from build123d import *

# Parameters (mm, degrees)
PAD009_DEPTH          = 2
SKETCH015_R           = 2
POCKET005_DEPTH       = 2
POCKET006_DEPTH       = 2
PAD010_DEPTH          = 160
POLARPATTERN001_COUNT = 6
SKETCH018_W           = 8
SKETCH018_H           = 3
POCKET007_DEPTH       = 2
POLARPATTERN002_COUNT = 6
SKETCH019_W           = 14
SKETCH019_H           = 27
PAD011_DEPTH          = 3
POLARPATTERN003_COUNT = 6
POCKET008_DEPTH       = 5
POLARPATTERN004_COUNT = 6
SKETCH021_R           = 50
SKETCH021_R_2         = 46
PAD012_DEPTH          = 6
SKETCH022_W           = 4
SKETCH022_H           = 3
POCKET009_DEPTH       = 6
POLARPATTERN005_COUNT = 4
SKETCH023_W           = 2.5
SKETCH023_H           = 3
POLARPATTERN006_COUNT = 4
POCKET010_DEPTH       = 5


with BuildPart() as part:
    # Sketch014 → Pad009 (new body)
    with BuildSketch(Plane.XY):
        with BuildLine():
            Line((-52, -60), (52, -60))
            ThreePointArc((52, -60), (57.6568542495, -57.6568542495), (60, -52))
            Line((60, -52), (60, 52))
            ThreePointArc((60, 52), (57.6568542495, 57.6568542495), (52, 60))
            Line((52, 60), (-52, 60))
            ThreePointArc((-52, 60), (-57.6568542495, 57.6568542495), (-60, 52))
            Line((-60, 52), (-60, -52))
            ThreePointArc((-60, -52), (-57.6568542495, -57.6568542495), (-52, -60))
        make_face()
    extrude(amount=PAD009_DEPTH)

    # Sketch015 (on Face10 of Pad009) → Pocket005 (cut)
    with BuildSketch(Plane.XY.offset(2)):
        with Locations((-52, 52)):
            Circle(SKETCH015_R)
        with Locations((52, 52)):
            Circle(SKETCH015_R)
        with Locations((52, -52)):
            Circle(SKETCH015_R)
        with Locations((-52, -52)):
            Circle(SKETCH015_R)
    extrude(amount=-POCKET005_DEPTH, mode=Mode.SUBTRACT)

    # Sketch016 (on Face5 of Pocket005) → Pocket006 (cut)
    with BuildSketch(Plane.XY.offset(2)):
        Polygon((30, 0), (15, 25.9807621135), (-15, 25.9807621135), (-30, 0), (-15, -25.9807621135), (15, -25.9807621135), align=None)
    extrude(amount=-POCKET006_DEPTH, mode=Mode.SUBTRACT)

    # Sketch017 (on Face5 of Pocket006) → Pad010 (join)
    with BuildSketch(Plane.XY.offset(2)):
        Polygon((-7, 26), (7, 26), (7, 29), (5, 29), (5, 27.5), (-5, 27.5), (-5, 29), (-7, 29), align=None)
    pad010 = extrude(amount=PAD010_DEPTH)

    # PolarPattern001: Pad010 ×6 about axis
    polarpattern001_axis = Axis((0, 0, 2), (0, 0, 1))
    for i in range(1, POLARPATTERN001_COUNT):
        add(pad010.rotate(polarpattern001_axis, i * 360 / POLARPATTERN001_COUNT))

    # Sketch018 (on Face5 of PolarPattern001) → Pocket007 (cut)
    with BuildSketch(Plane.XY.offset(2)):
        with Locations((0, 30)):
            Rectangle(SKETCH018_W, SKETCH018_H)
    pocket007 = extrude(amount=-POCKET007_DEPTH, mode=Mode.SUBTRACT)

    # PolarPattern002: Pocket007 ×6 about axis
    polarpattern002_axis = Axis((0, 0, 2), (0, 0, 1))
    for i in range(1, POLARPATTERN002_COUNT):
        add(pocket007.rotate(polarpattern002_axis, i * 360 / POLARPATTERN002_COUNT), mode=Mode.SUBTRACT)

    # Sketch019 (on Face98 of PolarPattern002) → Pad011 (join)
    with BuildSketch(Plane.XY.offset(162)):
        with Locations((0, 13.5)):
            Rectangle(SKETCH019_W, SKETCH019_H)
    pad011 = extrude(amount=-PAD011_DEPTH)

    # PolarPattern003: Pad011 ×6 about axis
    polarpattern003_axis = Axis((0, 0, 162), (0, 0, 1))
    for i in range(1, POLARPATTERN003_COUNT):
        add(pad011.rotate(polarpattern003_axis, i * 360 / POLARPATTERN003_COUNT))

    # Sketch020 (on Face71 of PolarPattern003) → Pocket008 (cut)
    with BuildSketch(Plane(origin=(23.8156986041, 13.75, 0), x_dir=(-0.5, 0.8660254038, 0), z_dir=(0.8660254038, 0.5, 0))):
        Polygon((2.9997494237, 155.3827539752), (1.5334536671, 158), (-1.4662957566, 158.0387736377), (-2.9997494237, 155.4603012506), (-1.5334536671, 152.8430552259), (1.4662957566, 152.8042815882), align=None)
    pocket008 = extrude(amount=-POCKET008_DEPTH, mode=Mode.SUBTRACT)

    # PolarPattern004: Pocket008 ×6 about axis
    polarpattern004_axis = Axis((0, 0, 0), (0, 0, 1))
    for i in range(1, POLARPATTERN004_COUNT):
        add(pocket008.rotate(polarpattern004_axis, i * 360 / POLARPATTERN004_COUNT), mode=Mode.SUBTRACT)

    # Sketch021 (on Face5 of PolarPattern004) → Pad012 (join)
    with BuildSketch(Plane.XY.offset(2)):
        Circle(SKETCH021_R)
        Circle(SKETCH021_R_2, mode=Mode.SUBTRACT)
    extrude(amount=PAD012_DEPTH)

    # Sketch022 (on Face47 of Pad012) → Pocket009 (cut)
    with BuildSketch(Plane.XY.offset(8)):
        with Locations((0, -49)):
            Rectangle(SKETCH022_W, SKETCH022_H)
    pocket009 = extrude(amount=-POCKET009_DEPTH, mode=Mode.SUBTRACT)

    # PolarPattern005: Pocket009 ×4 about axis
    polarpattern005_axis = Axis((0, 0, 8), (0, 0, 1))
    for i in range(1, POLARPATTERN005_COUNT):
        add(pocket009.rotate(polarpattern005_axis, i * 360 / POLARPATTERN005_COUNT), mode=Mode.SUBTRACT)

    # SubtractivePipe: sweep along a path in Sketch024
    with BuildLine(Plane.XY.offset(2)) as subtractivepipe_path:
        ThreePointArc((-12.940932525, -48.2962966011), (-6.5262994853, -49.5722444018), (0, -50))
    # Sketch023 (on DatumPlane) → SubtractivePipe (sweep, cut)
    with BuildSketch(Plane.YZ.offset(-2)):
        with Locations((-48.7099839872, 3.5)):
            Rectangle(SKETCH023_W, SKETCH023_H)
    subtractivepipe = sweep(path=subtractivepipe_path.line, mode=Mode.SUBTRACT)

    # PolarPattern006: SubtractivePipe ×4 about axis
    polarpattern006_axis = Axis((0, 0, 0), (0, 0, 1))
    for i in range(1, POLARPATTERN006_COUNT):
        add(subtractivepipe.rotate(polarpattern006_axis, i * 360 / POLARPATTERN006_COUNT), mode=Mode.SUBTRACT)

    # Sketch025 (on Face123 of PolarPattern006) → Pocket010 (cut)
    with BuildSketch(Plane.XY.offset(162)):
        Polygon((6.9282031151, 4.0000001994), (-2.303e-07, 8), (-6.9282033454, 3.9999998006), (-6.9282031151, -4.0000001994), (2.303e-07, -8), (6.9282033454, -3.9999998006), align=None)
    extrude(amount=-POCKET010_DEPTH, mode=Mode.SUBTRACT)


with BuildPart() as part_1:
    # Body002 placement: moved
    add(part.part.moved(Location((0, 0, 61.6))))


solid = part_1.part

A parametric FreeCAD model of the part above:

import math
import FreeCAD as App
import Part
import Sketcher

V = App.Vector
Q = App.Units.Quantity

doc = App.newDocument("Part")
params = doc.addObject("Spreadsheet::Sheet", "Params")
for row, (alias, value) in enumerate([
    ("sketch1_radius", "8 mm"),
    ("sketch1_width", "104 mm"),
    ("pad1_length", "2 mm"),
    ("sketch2_diameter", "4 mm"),
    ("pocket1_length", "2 mm"),
    ("sketch3_width", "30 mm"),
    ("sketch3_length", "30 mm"),
    ("pocket2_length", "2 mm"),
    ("sketch4_width", "14 mm"),
    ("sketch4_width2", "2 mm"),
    ("sketch4_height", "3 mm"),
    ("sketch4_height2", "1.5 mm"),
    ("pad2_length", "160 mm"),
    ("sketch5_width", "8 mm"),
    ("sketch5_height", "3 mm"),
    ("pocket3_length", "2 mm"),
    ("sketch6_width", "14 mm"),
    ("sketch6_height", "27 mm"),
    ("pad3_length", "3 mm"),
    ("sketch7_length", "3 mm"),
    ("pocket4_length", "5 mm"),
    ("sketch8_diameter", "100 mm"),
    ("sketch8_diameter2", "92 mm"),
    ("pad4_length", "6 mm"),
    ("sketch9_width", "4 mm"),
    ("sketch9_height", "3 mm"),
    ("pocket5_length", "6 mm"),
    ("sketch10_height", "3 mm"),
    ("sketch10_width", "2.5 mm"),
    ("sketch11_radius", "50 mm"),
    ("sketch12_height", "8 mm"),
    ("sketch12_length", "8 mm"),
    ("pocket6_length", "5 mm"),
], start=1):
    params.set(f"A{row}", alias)
    params.set(f"B{row}", "=" + value)
    params.setAlias(f"B{row}", alias)

body = doc.addObject("PartDesign::Body", "Body")

sketch1 = doc.addObject("Sketcher::SketchObject", "Sketch")
body.addObject(sketch1)
sketch1.AttachmentSupport = (doc.XY_Plane, [""])
sketch1.MapMode = "FlatFace"
sketch1.addGeometry(Part.LineSegment(V(-52, -60, 0), V(52, -60, 0)), False)
sketch1.addGeometry(Part.ArcOfCircle(Part.Circle(V(52, -52, 0), V(0, 0, 1), 8), math.radians(-90), math.radians(0)), False)
sketch1.addGeometry(Part.LineSegment(V(60, -52, 0), V(60, 52, 0)), False)
sketch1.addGeometry(Part.ArcOfCircle(Part.Circle(V(52, 52, 0), V(0, 0, 1), 8), math.radians(0), math.radians(90)), False)
sketch1.addGeometry(Part.LineSegment(V(52, 60, 0), V(-52, 60, 0)), False)
sketch1.addGeometry(Part.ArcOfCircle(Part.Circle(V(-52, 52, 0), V(0, 0, 1), 8), math.radians(90), math.radians(180)), False)
sketch1.addGeometry(Part.LineSegment(V(-60, 52, 0), V(-60, -52, 0)), False)
sketch1.addGeometry(Part.ArcOfCircle(Part.Circle(V(-52, -52, 0), V(0, 0, 1), 8), math.radians(180), math.radians(270)), False)
sketch1.addConstraint(Sketcher.Constraint("Tangent", 0, 2, 1, 1))
sketch1.addConstraint(Sketcher.Constraint("Tangent", 1, 2, 2, 1))
sketch1.addConstraint(Sketcher.Constraint("Tangent", 2, 2, 3, 1))
sketch1.addConstraint(Sketcher.Constraint("Tangent", 3, 2, 4, 1))
sketch1.addConstraint(Sketcher.Constraint("Tangent", 4, 2, 5, 1))
sketch1.addConstraint(Sketcher.Constraint("Tangent", 5, 2, 6, 1))
sketch1.addConstraint(Sketcher.Constraint("Tangent", 6, 2, 7, 1))
sketch1.addConstraint(Sketcher.Constraint("Tangent", 7, 2, 0, 1))
sketch1.addConstraint(Sketcher.Constraint("Horizontal", 0))
sketch1.addConstraint(Sketcher.Constraint("Vertical", 2))
sketch1.addConstraint(Sketcher.Constraint("Horizontal", 4))
sketch1.addConstraint(Sketcher.Constraint("Vertical", 6))
sketch1.addConstraint(Sketcher.Constraint("Equal", 1, 3))
sketch1.addConstraint(Sketcher.Constraint("Equal", 3, 5))
sketch1.addConstraint(Sketcher.Constraint("Equal", 5, 7))
sketch1.addConstraint(Sketcher.Constraint("Symmetric", 1, 3, 5, 3, -1, 1))
sketch1.addConstraint(Sketcher.Constraint("Equal", 4, 2))
sketch1.addConstraint(Sketcher.Constraint("Radius", 1, 8.0))
sketch1.addConstraint(Sketcher.Constraint("DistanceX", 0, 1, 0, 2, 104.0))
sketch1.setExpression("Constraints[17]", "Params.sketch1_radius")
sketch1.setExpression("Constraints[18]", "Params.sketch1_width")
pad1 = doc.addObject("PartDesign::Pad", "Pad")
body.addObject(pad1)
pad1.Profile = sketch1
pad1.setExpression("Length", "Params.pad1_length")

sketch2 = doc.addObject("Sketcher::SketchObject", "Sketch001")
body.addObject(sketch2)
sketch2.AttachmentSupport = (doc.XY_Plane, [""])
sketch2.MapMode = "FlatFace"
sketch2.AttachmentOffset = App.Placement(V(0, 0, 2), App.Rotation())
sketch2.addGeometry(Part.Circle(V(-52, 52, 0), V(0, 0, 1), 2), False)
sketch2.addGeometry(Part.Circle(V(52, 52, 0), V(0, 0, 1), 2), False)
sketch2.addGeometry(Part.Circle(V(52, -52, 0), V(0, 0, 1), 2), False)
sketch2.addGeometry(Part.Circle(V(-52, -52, 0), V(0, 0, 1), 2), False)
sketch2.addConstraint(Sketcher.Constraint("Equal", 0, 1))
sketch2.addConstraint(Sketcher.Constraint("Equal", 1, 2))
sketch2.addConstraint(Sketcher.Constraint("Equal", 2, 3))
sketch2.addConstraint(Sketcher.Constraint("Symmetric", 0, 3, 2, 3, -1, 1))
sketch2.addConstraint(Sketcher.Constraint("Symmetric", 1, 3, 3, 3, -1, 1))
sketch2.addConstraint(Sketcher.Constraint("Symmetric", 0, 3, 1, 3, -2))
sketch2.addConstraint(Sketcher.Constraint("Diameter", 0, 4.0))
sketch2.addConstraint(Sketcher.Constraint("DistanceX", 0, 3, -1, 1, 52.0))
sketch2.addConstraint(Sketcher.Constraint("DistanceY", -1, 1, 0, 3, 52.0))
sketch2.setExpression("Constraints[6]", "Params.sketch2_diameter")
pocket1 = doc.addObject("PartDesign::Pocket", "Pocket")
body.addObject(pocket1)
pocket1.Profile = sketch2
pocket1.setExpression("Length", "Params.pocket1_length")

sketch3 = doc.addObject("Sketcher::SketchObject", "Sketch002")
body.addObject(sketch3)
sketch3.AttachmentSupport = (doc.XY_Plane, [""])
sketch3.MapMode = "FlatFace"
sketch3.AttachmentOffset = App.Placement(V(0, 0, 2), App.Rotation())
sketch3.addGeometry(Part.LineSegment(V(30, 0, 0), V(15, 26, 0)), False)
sketch3.addGeometry(Part.LineSegment(V(15, 26, 0), V(-15, 26, 0)), False)
sketch3.addGeometry(Part.LineSegment(V(-15, 26, 0), V(-30, 0, 0)), False)
sketch3.addGeometry(Part.LineSegment(V(-30, 0, 0), V(-15, -26, 0)), False)
sketch3.addGeometry(Part.LineSegment(V(-15, -26, 0), V(15, -26, 0)), False)
sketch3.addGeometry(Part.LineSegment(V(15, -26, 0), V(30, 0, 0)), False)
sketch3.addConstraint(Sketcher.Constraint("Coincident", 0, 2, 1, 1))
sketch3.addConstraint(Sketcher.Constraint("Coincident", 1, 2, 2, 1))
sketch3.addConstraint(Sketcher.Constraint("Coincident", 2, 2, 3, 1))
sketch3.addConstraint(Sketcher.Constraint("Coincident", 3, 2, 4, 1))
sketch3.addConstraint(Sketcher.Constraint("Coincident", 4, 2, 5, 1))
sketch3.addConstraint(Sketcher.Constraint("Coincident", 5, 2, 0, 1))
sketch3.addConstraint(Sketcher.Constraint("Horizontal", 1))
sketch3.addConstraint(Sketcher.Constraint("Horizontal", 4))
sketch3.addConstraint(Sketcher.Constraint("Symmetric", 0, 2, 3, 2, -1, 1))
sketch3.addConstraint(Sketcher.Constraint("Symmetric", 2, 2, 5, 2, -1, 1))
sketch3.addConstraint(Sketcher.Constraint("PointOnObject", 2, 2, -1))
sketch3.addConstraint(Sketcher.Constraint("Parallel", 2, 5))
sketch3.addConstraint(Sketcher.Constraint("Vertical", 1, 2, 3, 2))
sketch3.addConstraint(Sketcher.Constraint("DistanceX", 1, 2, 1, 1, 30.0))
sketch3.addConstraint(Sketcher.Constraint("Angle", 0, Q("120 deg")))
sketch3.addConstraint(Sketcher.Constraint("Distance", 0, 30.0))
sketch3.setExpression("Constraints[13]", "Params.sketch3_width")
sketch3.setExpression("Constraints[15]", "Params.sketch3_length")
pocket2 = doc.addObject("PartDesign::Pocket", "Pocket001")
body.addObject(pocket2)
pocket2.Profile = sketch3
pocket2.setExpression("Length", "Params.pocket2_length")

sketch4 = doc.addObject("Sketcher::SketchObject", "Sketch003")
body.addObject(sketch4)
sketch4.AttachmentSupport = (doc.XY_Plane, [""])
sketch4.MapMode = "FlatFace"
sketch4.AttachmentOffset = App.Placement(V(0, 0, 2), App.Rotation())
sketch4.addGeometry(Part.LineSegment(V(-7, 26, 0), V(7, 26, 0)), False)
sketch4.addGeometry(Part.LineSegment(V(7, 26, 0), V(7, 29, 0)), False)
sketch4.addGeometry(Part.LineSegment(V(7, 29, 0), V(5, 29, 0)), False)
sketch4.addGeometry(Part.LineSegment(V(5, 29, 0), V(5, 27.5, 0)), False)
sketch4.addGeometry(Part.LineSegment(V(5, 27.5, 0), V(-5, 27.5, 0)), False)
sketch4.addGeometry(Part.LineSegment(V(-5, 27.5, 0), V(-5, 29, 0)), False)
sketch4.addGeometry(Part.LineSegment(V(-5, 29, 0), V(-7, 29, 0)), False)
sketch4.addGeometry(Part.LineSegment(V(-7, 29, 0), V(-7, 26, 0)), False)
sketch4.addConstraint(Sketcher.Constraint("Coincident", 0, 2, 1, 1))
sketch4.addConstraint(Sketcher.Constraint("Coincident", 1, 2, 2, 1))
sketch4.addConstraint(Sketcher.Constraint("Coincident", 2, 2, 3, 1))
sketch4.addConstraint(Sketcher.Constraint("Coincident", 3, 2, 4, 1))
sketch4.addConstraint(Sketcher.Constraint("Coincident", 4, 2, 5, 1))
sketch4.addConstraint(Sketcher.Constraint("Coincident", 5, 2, 6, 1))
sketch4.addConstraint(Sketcher.Constraint("Coincident", 6, 2, 7, 1))
sketch4.addConstraint(Sketcher.Constraint("Coincident", 7, 2, 0, 1))
sketch4.addConstraint(Sketcher.Constraint("Horizontal", 0))
sketch4.addConstraint(Sketcher.Constraint("Vertical", 1))
sketch4.addConstraint(Sketcher.Constraint("Horizontal", 2))
sketch4.addConstraint(Sketcher.Constraint("Vertical", 3))
sketch4.addConstraint(Sketcher.Constraint("Horizontal", 4))
sketch4.addConstraint(Sketcher.Constraint("Vertical", 5))
sketch4.addConstraint(Sketcher.Constraint("Horizontal", 6))
sketch4.addConstraint(Sketcher.Constraint("Vertical", 7))
sketch4.addConstraint(Sketcher.Constraint("Symmetric", 2, 2, 5, 2, -2))
sketch4.addConstraint(Sketcher.Constraint("Equal", 2, 6))
sketch4.addConstraint(Sketcher.Constraint("DistanceX", 0, 1, 0, 2, 14.0))
sketch4.addConstraint(Sketcher.Constraint("DistanceX", 2, 2, 2, 1, 2.0))
sketch4.addConstraint(Sketcher.Constraint("DistanceY", 1, 1, 1, 2, 3.0))
sketch4.addConstraint(Sketcher.Constraint("DistanceY", 3, 2, 3, 1, 1.5))
sketch4.addConstraint(Sketcher.Constraint("DistanceY", -1, 1, 0, 2, 26.0))
sketch4.setExpression("Constraints[18]", "Params.sketch4_width")
sketch4.setExpression("Constraints[19]", "Params.sketch4_width2")
sketch4.setExpression("Constraints[20]", "Params.sketch4_height")
sketch4.setExpression("Constraints[21]", "Params.sketch4_height2")
pad2 = doc.addObject("PartDesign::Pad", "Pad001")
body.addObject(pad2)
pad2.Profile = sketch4
pad2.setExpression("Length", "Params.pad2_length")
doc.recompute()

polarpattern = doc.addObject("PartDesign::PolarPattern", "PolarPattern")
body.addObject(polarpattern)
polarpattern.Originals = [pad2]
polarpattern.Axis = (doc.Z_Axis, [""])
polarpattern.Angle = 360
polarpattern.Occurrences = 6
body.Tip = polarpattern

sketch5 = doc.addObject("Sketcher::SketchObject", "Sketch004")
body.addObject(sketch5)
sketch5.AttachmentSupport = (doc.XY_Plane, [""])
sketch5.MapMode = "FlatFace"
sketch5.AttachmentOffset = App.Placement(V(0, 0, 2), App.Rotation())
sketch5.addGeometry(Part.LineSegment(V(-4, 31.5, 0), V(-4, 28.5, 0)), False)
sketch5.addGeometry(Part.LineSegment(V(-4, 28.5, 0), V(4, 28.5, 0)), False)
sketch5.addGeometry(Part.LineSegment(V(4, 28.5, 0), V(4, 31.5, 0)), False)
sketch5.addGeometry(Part.LineSegment(V(4, 31.5, 0), V(-4, 31.5, 0)), False)
sketch5.addConstraint(Sketcher.Constraint("Coincident", 0, 2, 1, 1))
sketch5.addConstraint(Sketcher.Constraint("Coincident", 1, 2, 2, 1))
sketch5.addConstraint(Sketcher.Constraint("Coincident", 2, 2, 3, 1))
sketch5.addConstraint(Sketcher.Constraint("Coincident", 3, 2, 0, 1))
sketch5.addConstraint(Sketcher.Constraint("Vertical", 0))
sketch5.addConstraint(Sketcher.Constraint("Horizontal", 1))
sketch5.addConstraint(Sketcher.Constraint("Vertical", 2))
sketch5.addConstraint(Sketcher.Constraint("Horizontal", 3))
sketch5.addConstraint(Sketcher.Constraint("DistanceX", 1, 1, 1, 2, 8.0))
sketch5.addConstraint(Sketcher.Constraint("DistanceY", 0, 2, 0, 1, 3.0))
sketch5.addConstraint(Sketcher.Constraint("DistanceX", 0, 2, -1, 1, 4.0))
sketch5.addConstraint(Sketcher.Constraint("DistanceY", -1, 1, 0, 2, 28.5))
sketch5.setExpression("Constraints[8]", "Params.sketch5_width")
sketch5.setExpression("Constraints[9]", "Params.sketch5_height")
pocket3 = doc.addObject("PartDesign::Pocket", "Pocket002")
body.addObject(pocket3)
pocket3.Profile = sketch5
pocket3.setExpression("Length", "Params.pocket3_length")
doc.recompute()

polarpattern2 = doc.addObject("PartDesign::PolarPattern", "PolarPattern001")
body.addObject(polarpattern2)
polarpattern2.Originals = [pocket3]
polarpattern2.Axis = (doc.Z_Axis, [""])
polarpattern2.Angle = 360
polarpattern2.Occurrences = 6
body.Tip = polarpattern2

sketch6 = doc.addObject("Sketcher::SketchObject", "Sketch005")
body.addObject(sketch6)
sketch6.AttachmentSupport = (doc.XY_Plane, [""])
sketch6.MapMode = "FlatFace"
sketch6.AttachmentOffset = App.Placement(V(0, 0, 162), App.Rotation())
sketch6.addGeometry(Part.LineSegment(V(-7, 27, 0), V(-7, 0, 0)), False)
sketch6.addGeometry(Part.LineSegment(V(-7, 0, 0), V(7, 0, 0)), False)
sketch6.addGeometry(Part.LineSegment(V(7, 0, 0), V(7, 27, 0)), False)
sketch6.addGeometry(Part.LineSegment(V(7, 27, 0), V(-7, 27, 0)), False)
sketch6.addConstraint(Sketcher.Constraint("Coincident", 0, 2, 1, 1))
sketch6.addConstraint(Sketcher.Constraint("Coincident", 1, 2, 2, 1))
sketch6.addConstraint(Sketcher.Constraint("Coincident", 2, 2, 3, 1))
sketch6.addConstraint(Sketcher.Constraint("Coincident", 3, 2, 0, 1))
sketch6.addConstraint(Sketcher.Constraint("Vertical", 0))
sketch6.addConstraint(Sketcher.Constraint("Horizontal", 1))
sketch6.addConstraint(Sketcher.Constraint("Vertical", 2))
sketch6.addConstraint(Sketcher.Constraint("Horizontal", 3))
sketch6.addConstraint(Sketcher.Constraint("Symmetric", 0, 2, 1, 2, -1, 1))
sketch6.addConstraint(Sketcher.Constraint("DistanceX", 1, 1, 1, 2, 14.0))
sketch6.addConstraint(Sketcher.Constraint("DistanceY", 0, 2, 0, 1, 27.0))
sketch6.setExpression("Constraints[9]", "Params.sketch6_width")
sketch6.setExpression("Constraints[10]", "Params.sketch6_height")
pad3 = doc.addObject("PartDesign::Pad", "Pad002")
body.addObject(pad3)
pad3.Profile = sketch6
pad3.setExpression("Length", "Params.pad3_length")
pad3.Reversed = True
doc.recompute()

polarpattern3 = doc.addObject("PartDesign::PolarPattern", "PolarPattern002")
body.addObject(polarpattern3)
polarpattern3.Originals = [pad3]
polarpattern3.Axis = (doc.Z_Axis, [""])
polarpattern3.Angle = 360
polarpattern3.Occurrences = 6
body.Tip = polarpattern3

sketch7 = doc.addObject("Sketcher::SketchObject", "Sketch006")
body.addObject(sketch7)
sketch7.Placement = App.Placement(V(23.815699, 13.75, 0), App.Rotation(V(-0.5, 0.866025404, 0), V(0, 0, 1), V(0.866025404, 0.5, 0), "ZXY"))
sketch7.addGeometry(Part.LineSegment(V(2.999749, 155.382754, 0), V(1.533454, 158, 0)), False)
sketch7.addGeometry(Part.LineSegment(V(1.533454, 158, 0), V(-1.466296, 158.038774, 0)), False)
sketch7.addGeometry(Part.LineSegment(V(-1.466296, 158.038774, 0), V(-2.999749, 155.460301, 0)), False)
sketch7.addGeometry(Part.LineSegment(V(-2.999749, 155.460301, 0), V(-1.533454, 152.843055, 0)), False)
sketch7.addGeometry(Part.LineSegment(V(-1.533454, 152.843055, 0), V(1.466296, 152.804282, 0)), False)
sketch7.addGeometry(Part.LineSegment(V(1.466296, 152.804282, 0), V(2.999749, 155.382754, 0)), False)
sketch7.addConstraint(Sketcher.Constraint("Coincident", 0, 2, 1, 1))
sketch7.addConstraint(Sketcher.Constraint("Coincident", 1, 2, 2, 1))
sketch7.addConstraint(Sketcher.Constraint("Coincident", 2, 2, 3, 1))
sketch7.addConstraint(Sketcher.Constraint("Coincident", 3, 2, 4, 1))
sketch7.addConstraint(Sketcher.Constraint("Coincident", 4, 2, 5, 1))
sketch7.addConstraint(Sketcher.Constraint("Coincident", 5, 2, 0, 1))
sketch7.addConstraint(Sketcher.Constraint("Parallel", 0, 3))
sketch7.addConstraint(Sketcher.Constraint("Parallel", 1, 4))
sketch7.addConstraint(Sketcher.Constraint("Parallel", 2, 5))
sketch7.addConstraint(Sketcher.Constraint("Equal", 0, 1))
sketch7.addConstraint(Sketcher.Constraint("Equal", 1, 2))
sketch7.addConstraint(Sketcher.Constraint("Equal", 2, 3))
sketch7.addConstraint(Sketcher.Constraint("Distance", 0, 3.0))
sketch7.addConstraint(Sketcher.Constraint("DistanceY", -1, 1, 0, 2, 158.0))
sketch7.addConstraint(Sketcher.Constraint("DistanceY", -1, 1, 2, 2, 155.460301))
sketch7.addConstraint(Sketcher.Constraint("DistanceX", 2, 2, 5, 2, 5.999499))
sketch7.addConstraint(Sketcher.Constraint("DistanceX", 2, 2, -1, 1, 2.999749))
sketch7.addConstraint(Sketcher.Constraint("DistanceY", -1, 1, 4, 2, 152.804282))
sketch7.setExpression("Constraints[12]", "Params.sketch7_length")
pocket4 = doc.addObject("PartDesign::Pocket", "Pocket003")
body.addObject(pocket4)
pocket4.Profile = sketch7
pocket4.setExpression("Length", "Params.pocket4_length")
doc.recompute()

polarpattern4 = doc.addObject("PartDesign::PolarPattern", "PolarPattern003")
body.addObject(polarpattern4)
polarpattern4.Originals = [pocket4]
polarpattern4.Axis = (doc.Z_Axis, [""])
polarpattern4.Angle = 360
polarpattern4.Occurrences = 6
body.Tip = polarpattern4

sketch8 = doc.addObject("Sketcher::SketchObject", "Sketch007")
body.addObject(sketch8)
sketch8.AttachmentSupport = (doc.XY_Plane, [""])
sketch8.MapMode = "FlatFace"
sketch8.AttachmentOffset = App.Placement(V(0, 0, 2), App.Rotation())
sketch8.addGeometry(Part.Circle(V(0, 0, 0), V(0, 0, 1), 50), False)
sketch8.addGeometry(Part.Circle(V(0, 0, 0), V(0, 0, 1), 46), False)
sketch8.addConstraint(Sketcher.Constraint("Coincident", 0, 3, -1, 1))
sketch8.addConstraint(Sketcher.Constraint("Coincident", 1, 3, -1, 1))
sketch8.addConstraint(Sketcher.Constraint("Diameter", 0, 100.0))
sketch8.addConstraint(Sketcher.Constraint("Diameter", 1, 92.0))
sketch8.setExpression("Constraints[2]", "Params.sketch8_diameter")
sketch8.setExpression("Constraints[3]", "Params.sketch8_diameter2")
pad4 = doc.addObject("PartDesign::Pad", "Pad003")
body.addObject(pad4)
pad4.Profile = sketch8
pad4.setExpression("Length", "Params.pad4_length")

sketch9 = doc.addObject("Sketcher::SketchObject", "Sketch008")
body.addObject(sketch9)
sketch9.AttachmentSupport = (doc.XY_Plane, [""])
sketch9.MapMode = "FlatFace"
sketch9.AttachmentOffset = App.Placement(V(0, 0, 8), App.Rotation())
sketch9.addGeometry(Part.LineSegment(V(-2, -47.5, 0), V(-2, -50.5, 0)), False)
sketch9.addGeometry(Part.LineSegment(V(-2, -50.5, 0), V(2, -50.5, 0)), False)
sketch9.addGeometry(Part.LineSegment(V(2, -50.5, 0), V(2, -47.5, 0)), False)
sketch9.addGeometry(Part.LineSegment(V(2, -47.5, 0), V(-2, -47.5, 0)), False)
sketch9.addConstraint(Sketcher.Constraint("Coincident", 0, 2, 1, 1))
sketch9.addConstraint(Sketcher.Constraint("Coincident", 1, 2, 2, 1))
sketch9.addConstraint(Sketcher.Constraint("Coincident", 2, 2, 3, 1))
sketch9.addConstraint(Sketcher.Constraint("Coincident", 3, 2, 0, 1))
sketch9.addConstraint(Sketcher.Constraint("Vertical", 0))
sketch9.addConstraint(Sketcher.Constraint("Horizontal", 1))
sketch9.addConstraint(Sketcher.Constraint("Vertical", 2))
sketch9.addConstraint(Sketcher.Constraint("Horizontal", 3))
sketch9.addConstraint(Sketcher.Constraint("DistanceX", 1, 1, 1, 2, 4.0))
sketch9.addConstraint(Sketcher.Constraint("DistanceY", 0, 2, 0, 1, 3.0))
sketch9.addConstraint(Sketcher.Constraint("DistanceX", 0, 2, -1, 1, 2.0))
sketch9.addConstraint(Sketcher.Constraint("DistanceY", 0, 2, -1, 1, 50.5))
sketch9.setExpression("Constraints[8]", "Params.sketch9_width")
sketch9.setExpression("Constraints[9]", "Params.sketch9_height")
pocket5 = doc.addObject("PartDesign::Pocket", "Pocket004")
body.addObject(pocket5)
pocket5.Profile = sketch9
pocket5.setExpression("Length", "Params.pocket5_length")
doc.recompute()

polarpattern5 = doc.addObject("PartDesign::PolarPattern", "PolarPattern004")
body.addObject(polarpattern5)
polarpattern5.Originals = [pocket5]
polarpattern5.Axis = (doc.Z_Axis, [""])
polarpattern5.Angle = 360
polarpattern5.Occurrences = 4
body.Tip = polarpattern5

sketch10 = doc.addObject("Sketcher::SketchObject", "Sketch009")
body.addObject(sketch10)
sketch10.AttachmentSupport = (doc.YZ_Plane, [""])
sketch10.MapMode = "FlatFace"
sketch10.AttachmentOffset = App.Placement(V(0, 0, -2), App.Rotation())
sketch10.addGeometry(Part.LineSegment(V(-50, 5, 0), V(-50, 2, 0)), False)
sketch10.addGeometry(Part.LineSegment(V(-50, 2, 0), V(-47.5, 2, 0)), False)
sketch10.addGeometry(Part.LineSegment(V(-47.5, 2, 0), V(-47.5, 5, 0)), False)
sketch10.addGeometry(Part.LineSegment(V(-47.5, 5, 0), V(-50, 5, 0)), False)
sketch10.addConstraint(Sketcher.Constraint("Coincident", 0, 2, 1, 1))
sketch10.addConstraint(Sketcher.Constraint("Coincident", 1, 2, 2, 1))
sketch10.addConstraint(Sketcher.Constraint("Coincident", 2, 2, 3, 1))
sketch10.addConstraint(Sketcher.Constraint("Coincident", 3, 2, 0, 1))
sketch10.addConstraint(Sketcher.Constraint("Vertical", 0))
sketch10.addConstraint(Sketcher.Constraint("Horizontal", 1))
sketch10.addConstraint(Sketcher.Constraint("Vertical", 2))
sketch10.addConstraint(Sketcher.Constraint("Horizontal", 3))
sketch10.addConstraint(Sketcher.Constraint("DistanceY", 0, 2, 0, 1, 3.0))
sketch10.addConstraint(Sketcher.Constraint("DistanceX", 1, 1, 1, 2, 2.5))
sketch10.addConstraint(Sketcher.Constraint("DistanceY", -1, 1, 0, 2, 2.0))
sketch10.addConstraint(Sketcher.Constraint("DistanceX", 0, 2, -1, 1, 49.959984))
sketch10.setExpression("Constraints[8]", "Params.sketch10_height")
sketch10.setExpression("Constraints[9]", "Params.sketch10_width")

sketch11 = doc.addObject("Sketcher::SketchObject", "Sketch010")
body.addObject(sketch11)
sketch11.AttachmentSupport = (doc.XY_Plane, [""])
sketch11.MapMode = "FlatFace"
sketch11.AttachmentOffset = App.Placement(V(0, 0, 2), App.Rotation())
sketch11.addGeometry(Part.ArcOfCircle(Part.Circle(V(0, 0, 0), V(0, 0, 1), 50), math.radians(-104.999977), math.radians(-90)), False)
sketch11.addConstraint(Sketcher.Constraint("Coincident", 0, 3, -1, 1))
sketch11.addConstraint(Sketcher.Constraint("PointOnObject", 0, 2, -2))
sketch11.addConstraint(Sketcher.Constraint("Radius", 0, 50.0))
sketch11.addConstraint(Sketcher.Constraint("DistanceX", 0, 1, -1, 1, 12.940933))
sketch11.setExpression("Constraints[2]", "Params.sketch11_radius")
doc.recompute()

subtractivepipe = doc.addObject("PartDesign::SubtractivePipe", "SubtractivePipe")
body.addObject(subtractivepipe)
subtractivepipe.Profile = sketch10
subtractivepipe.Spine = (sketch11, ["Edge1"])
doc.recompute()

polarpattern6 = doc.addObject("PartDesign::PolarPattern", "PolarPattern005")
body.addObject(polarpattern6)
polarpattern6.Originals = [subtractivepipe]
polarpattern6.Axis = (doc.Z_Axis, [""])
polarpattern6.Angle = 360
polarpattern6.Occurrences = 4
body.Tip = polarpattern6

sketch12 = doc.addObject("Sketcher::SketchObject", "Sketch011")
body.addObject(sketch12)
sketch12.AttachmentSupport = (doc.XY_Plane, [""])
sketch12.MapMode = "FlatFace"
sketch12.AttachmentOffset = App.Placement(V(0, 0, 162), App.Rotation())
sketch12.addGeometry(Part.LineSegment(V(7, 4, 0), V(0, 8, 0)), False)
sketch12.addGeometry(Part.LineSegment(V(0, 8, 0), V(-7, 4, 0)), False)
sketch12.addGeometry(Part.LineSegment(V(-7, 4, 0), V(-7, -4, 0)), False)
sketch12.addGeometry(Part.LineSegment(V(-7, -4, 0), V(0, -8, 0)), False)
sketch12.addGeometry(Part.LineSegment(V(0, -8, 0), V(7, -4, 0)), False)
sketch12.addGeometry(Part.LineSegment(V(7, -4, 0), V(7, 4, 0)), False)
sketch12.addConstraint(Sketcher.Constraint("Coincident", 0, 2, 1, 1))
sketch12.addConstraint(Sketcher.Constraint("Coincident", 1, 2, 2, 1))
sketch12.addConstraint(Sketcher.Constraint("Coincident", 2, 2, 3, 1))
sketch12.addConstraint(Sketcher.Constraint("Coincident", 3, 2, 4, 1))
sketch12.addConstraint(Sketcher.Constraint("Coincident", 4, 2, 5, 1))
sketch12.addConstraint(Sketcher.Constraint("Coincident", 5, 2, 0, 1))
sketch12.addConstraint(Sketcher.Constraint("Vertical", 2))
sketch12.addConstraint(Sketcher.Constraint("Vertical", 5))
sketch12.addConstraint(Sketcher.Constraint("Symmetric", 0, 2, 3, 2, -1, 1))
sketch12.addConstraint(Sketcher.Constraint("Symmetric", 1, 2, 4, 2, -1, 1))
sketch12.addConstraint(Sketcher.Constraint("PointOnObject", 0, 2, -2))
sketch12.addConstraint(Sketcher.Constraint("Parallel", 0, 3))
sketch12.addConstraint(Sketcher.Constraint("Horizontal", 2, 2, 4, 2))
sketch12.addConstraint(Sketcher.Constraint("DistanceY", 2, 2, 2, 1, 8.0))
sketch12.addConstraint(Sketcher.Constraint("Angle", 0, Q("150.000002 deg")))
sketch12.addConstraint(Sketcher.Constraint("Distance", 0, 8.0))
sketch12.setExpression("Constraints[13]", "Params.sketch12_height")
sketch12.setExpression("Constraints[15]", "Params.sketch12_length")
pocket6 = doc.addObject("PartDesign::Pocket", "Pocket005")
body.addObject(pocket6)
pocket6.Profile = sketch12
pocket6.setExpression("Length", "Params.pocket6_length")
body2 = doc.addObject("PartDesign::Body", "Body001")
doc.recompute()

body.Placement = App.Placement(V(0, 0, 61.6), App.Rotation(V(0, 0, 1), 0))
boolean = doc.addObject("PartDesign::Boolean", "Boolean")
body2.addObject(boolean)
boolean.Type = "Fuse"
boolean.addObjects([body])

doc.recompute()
